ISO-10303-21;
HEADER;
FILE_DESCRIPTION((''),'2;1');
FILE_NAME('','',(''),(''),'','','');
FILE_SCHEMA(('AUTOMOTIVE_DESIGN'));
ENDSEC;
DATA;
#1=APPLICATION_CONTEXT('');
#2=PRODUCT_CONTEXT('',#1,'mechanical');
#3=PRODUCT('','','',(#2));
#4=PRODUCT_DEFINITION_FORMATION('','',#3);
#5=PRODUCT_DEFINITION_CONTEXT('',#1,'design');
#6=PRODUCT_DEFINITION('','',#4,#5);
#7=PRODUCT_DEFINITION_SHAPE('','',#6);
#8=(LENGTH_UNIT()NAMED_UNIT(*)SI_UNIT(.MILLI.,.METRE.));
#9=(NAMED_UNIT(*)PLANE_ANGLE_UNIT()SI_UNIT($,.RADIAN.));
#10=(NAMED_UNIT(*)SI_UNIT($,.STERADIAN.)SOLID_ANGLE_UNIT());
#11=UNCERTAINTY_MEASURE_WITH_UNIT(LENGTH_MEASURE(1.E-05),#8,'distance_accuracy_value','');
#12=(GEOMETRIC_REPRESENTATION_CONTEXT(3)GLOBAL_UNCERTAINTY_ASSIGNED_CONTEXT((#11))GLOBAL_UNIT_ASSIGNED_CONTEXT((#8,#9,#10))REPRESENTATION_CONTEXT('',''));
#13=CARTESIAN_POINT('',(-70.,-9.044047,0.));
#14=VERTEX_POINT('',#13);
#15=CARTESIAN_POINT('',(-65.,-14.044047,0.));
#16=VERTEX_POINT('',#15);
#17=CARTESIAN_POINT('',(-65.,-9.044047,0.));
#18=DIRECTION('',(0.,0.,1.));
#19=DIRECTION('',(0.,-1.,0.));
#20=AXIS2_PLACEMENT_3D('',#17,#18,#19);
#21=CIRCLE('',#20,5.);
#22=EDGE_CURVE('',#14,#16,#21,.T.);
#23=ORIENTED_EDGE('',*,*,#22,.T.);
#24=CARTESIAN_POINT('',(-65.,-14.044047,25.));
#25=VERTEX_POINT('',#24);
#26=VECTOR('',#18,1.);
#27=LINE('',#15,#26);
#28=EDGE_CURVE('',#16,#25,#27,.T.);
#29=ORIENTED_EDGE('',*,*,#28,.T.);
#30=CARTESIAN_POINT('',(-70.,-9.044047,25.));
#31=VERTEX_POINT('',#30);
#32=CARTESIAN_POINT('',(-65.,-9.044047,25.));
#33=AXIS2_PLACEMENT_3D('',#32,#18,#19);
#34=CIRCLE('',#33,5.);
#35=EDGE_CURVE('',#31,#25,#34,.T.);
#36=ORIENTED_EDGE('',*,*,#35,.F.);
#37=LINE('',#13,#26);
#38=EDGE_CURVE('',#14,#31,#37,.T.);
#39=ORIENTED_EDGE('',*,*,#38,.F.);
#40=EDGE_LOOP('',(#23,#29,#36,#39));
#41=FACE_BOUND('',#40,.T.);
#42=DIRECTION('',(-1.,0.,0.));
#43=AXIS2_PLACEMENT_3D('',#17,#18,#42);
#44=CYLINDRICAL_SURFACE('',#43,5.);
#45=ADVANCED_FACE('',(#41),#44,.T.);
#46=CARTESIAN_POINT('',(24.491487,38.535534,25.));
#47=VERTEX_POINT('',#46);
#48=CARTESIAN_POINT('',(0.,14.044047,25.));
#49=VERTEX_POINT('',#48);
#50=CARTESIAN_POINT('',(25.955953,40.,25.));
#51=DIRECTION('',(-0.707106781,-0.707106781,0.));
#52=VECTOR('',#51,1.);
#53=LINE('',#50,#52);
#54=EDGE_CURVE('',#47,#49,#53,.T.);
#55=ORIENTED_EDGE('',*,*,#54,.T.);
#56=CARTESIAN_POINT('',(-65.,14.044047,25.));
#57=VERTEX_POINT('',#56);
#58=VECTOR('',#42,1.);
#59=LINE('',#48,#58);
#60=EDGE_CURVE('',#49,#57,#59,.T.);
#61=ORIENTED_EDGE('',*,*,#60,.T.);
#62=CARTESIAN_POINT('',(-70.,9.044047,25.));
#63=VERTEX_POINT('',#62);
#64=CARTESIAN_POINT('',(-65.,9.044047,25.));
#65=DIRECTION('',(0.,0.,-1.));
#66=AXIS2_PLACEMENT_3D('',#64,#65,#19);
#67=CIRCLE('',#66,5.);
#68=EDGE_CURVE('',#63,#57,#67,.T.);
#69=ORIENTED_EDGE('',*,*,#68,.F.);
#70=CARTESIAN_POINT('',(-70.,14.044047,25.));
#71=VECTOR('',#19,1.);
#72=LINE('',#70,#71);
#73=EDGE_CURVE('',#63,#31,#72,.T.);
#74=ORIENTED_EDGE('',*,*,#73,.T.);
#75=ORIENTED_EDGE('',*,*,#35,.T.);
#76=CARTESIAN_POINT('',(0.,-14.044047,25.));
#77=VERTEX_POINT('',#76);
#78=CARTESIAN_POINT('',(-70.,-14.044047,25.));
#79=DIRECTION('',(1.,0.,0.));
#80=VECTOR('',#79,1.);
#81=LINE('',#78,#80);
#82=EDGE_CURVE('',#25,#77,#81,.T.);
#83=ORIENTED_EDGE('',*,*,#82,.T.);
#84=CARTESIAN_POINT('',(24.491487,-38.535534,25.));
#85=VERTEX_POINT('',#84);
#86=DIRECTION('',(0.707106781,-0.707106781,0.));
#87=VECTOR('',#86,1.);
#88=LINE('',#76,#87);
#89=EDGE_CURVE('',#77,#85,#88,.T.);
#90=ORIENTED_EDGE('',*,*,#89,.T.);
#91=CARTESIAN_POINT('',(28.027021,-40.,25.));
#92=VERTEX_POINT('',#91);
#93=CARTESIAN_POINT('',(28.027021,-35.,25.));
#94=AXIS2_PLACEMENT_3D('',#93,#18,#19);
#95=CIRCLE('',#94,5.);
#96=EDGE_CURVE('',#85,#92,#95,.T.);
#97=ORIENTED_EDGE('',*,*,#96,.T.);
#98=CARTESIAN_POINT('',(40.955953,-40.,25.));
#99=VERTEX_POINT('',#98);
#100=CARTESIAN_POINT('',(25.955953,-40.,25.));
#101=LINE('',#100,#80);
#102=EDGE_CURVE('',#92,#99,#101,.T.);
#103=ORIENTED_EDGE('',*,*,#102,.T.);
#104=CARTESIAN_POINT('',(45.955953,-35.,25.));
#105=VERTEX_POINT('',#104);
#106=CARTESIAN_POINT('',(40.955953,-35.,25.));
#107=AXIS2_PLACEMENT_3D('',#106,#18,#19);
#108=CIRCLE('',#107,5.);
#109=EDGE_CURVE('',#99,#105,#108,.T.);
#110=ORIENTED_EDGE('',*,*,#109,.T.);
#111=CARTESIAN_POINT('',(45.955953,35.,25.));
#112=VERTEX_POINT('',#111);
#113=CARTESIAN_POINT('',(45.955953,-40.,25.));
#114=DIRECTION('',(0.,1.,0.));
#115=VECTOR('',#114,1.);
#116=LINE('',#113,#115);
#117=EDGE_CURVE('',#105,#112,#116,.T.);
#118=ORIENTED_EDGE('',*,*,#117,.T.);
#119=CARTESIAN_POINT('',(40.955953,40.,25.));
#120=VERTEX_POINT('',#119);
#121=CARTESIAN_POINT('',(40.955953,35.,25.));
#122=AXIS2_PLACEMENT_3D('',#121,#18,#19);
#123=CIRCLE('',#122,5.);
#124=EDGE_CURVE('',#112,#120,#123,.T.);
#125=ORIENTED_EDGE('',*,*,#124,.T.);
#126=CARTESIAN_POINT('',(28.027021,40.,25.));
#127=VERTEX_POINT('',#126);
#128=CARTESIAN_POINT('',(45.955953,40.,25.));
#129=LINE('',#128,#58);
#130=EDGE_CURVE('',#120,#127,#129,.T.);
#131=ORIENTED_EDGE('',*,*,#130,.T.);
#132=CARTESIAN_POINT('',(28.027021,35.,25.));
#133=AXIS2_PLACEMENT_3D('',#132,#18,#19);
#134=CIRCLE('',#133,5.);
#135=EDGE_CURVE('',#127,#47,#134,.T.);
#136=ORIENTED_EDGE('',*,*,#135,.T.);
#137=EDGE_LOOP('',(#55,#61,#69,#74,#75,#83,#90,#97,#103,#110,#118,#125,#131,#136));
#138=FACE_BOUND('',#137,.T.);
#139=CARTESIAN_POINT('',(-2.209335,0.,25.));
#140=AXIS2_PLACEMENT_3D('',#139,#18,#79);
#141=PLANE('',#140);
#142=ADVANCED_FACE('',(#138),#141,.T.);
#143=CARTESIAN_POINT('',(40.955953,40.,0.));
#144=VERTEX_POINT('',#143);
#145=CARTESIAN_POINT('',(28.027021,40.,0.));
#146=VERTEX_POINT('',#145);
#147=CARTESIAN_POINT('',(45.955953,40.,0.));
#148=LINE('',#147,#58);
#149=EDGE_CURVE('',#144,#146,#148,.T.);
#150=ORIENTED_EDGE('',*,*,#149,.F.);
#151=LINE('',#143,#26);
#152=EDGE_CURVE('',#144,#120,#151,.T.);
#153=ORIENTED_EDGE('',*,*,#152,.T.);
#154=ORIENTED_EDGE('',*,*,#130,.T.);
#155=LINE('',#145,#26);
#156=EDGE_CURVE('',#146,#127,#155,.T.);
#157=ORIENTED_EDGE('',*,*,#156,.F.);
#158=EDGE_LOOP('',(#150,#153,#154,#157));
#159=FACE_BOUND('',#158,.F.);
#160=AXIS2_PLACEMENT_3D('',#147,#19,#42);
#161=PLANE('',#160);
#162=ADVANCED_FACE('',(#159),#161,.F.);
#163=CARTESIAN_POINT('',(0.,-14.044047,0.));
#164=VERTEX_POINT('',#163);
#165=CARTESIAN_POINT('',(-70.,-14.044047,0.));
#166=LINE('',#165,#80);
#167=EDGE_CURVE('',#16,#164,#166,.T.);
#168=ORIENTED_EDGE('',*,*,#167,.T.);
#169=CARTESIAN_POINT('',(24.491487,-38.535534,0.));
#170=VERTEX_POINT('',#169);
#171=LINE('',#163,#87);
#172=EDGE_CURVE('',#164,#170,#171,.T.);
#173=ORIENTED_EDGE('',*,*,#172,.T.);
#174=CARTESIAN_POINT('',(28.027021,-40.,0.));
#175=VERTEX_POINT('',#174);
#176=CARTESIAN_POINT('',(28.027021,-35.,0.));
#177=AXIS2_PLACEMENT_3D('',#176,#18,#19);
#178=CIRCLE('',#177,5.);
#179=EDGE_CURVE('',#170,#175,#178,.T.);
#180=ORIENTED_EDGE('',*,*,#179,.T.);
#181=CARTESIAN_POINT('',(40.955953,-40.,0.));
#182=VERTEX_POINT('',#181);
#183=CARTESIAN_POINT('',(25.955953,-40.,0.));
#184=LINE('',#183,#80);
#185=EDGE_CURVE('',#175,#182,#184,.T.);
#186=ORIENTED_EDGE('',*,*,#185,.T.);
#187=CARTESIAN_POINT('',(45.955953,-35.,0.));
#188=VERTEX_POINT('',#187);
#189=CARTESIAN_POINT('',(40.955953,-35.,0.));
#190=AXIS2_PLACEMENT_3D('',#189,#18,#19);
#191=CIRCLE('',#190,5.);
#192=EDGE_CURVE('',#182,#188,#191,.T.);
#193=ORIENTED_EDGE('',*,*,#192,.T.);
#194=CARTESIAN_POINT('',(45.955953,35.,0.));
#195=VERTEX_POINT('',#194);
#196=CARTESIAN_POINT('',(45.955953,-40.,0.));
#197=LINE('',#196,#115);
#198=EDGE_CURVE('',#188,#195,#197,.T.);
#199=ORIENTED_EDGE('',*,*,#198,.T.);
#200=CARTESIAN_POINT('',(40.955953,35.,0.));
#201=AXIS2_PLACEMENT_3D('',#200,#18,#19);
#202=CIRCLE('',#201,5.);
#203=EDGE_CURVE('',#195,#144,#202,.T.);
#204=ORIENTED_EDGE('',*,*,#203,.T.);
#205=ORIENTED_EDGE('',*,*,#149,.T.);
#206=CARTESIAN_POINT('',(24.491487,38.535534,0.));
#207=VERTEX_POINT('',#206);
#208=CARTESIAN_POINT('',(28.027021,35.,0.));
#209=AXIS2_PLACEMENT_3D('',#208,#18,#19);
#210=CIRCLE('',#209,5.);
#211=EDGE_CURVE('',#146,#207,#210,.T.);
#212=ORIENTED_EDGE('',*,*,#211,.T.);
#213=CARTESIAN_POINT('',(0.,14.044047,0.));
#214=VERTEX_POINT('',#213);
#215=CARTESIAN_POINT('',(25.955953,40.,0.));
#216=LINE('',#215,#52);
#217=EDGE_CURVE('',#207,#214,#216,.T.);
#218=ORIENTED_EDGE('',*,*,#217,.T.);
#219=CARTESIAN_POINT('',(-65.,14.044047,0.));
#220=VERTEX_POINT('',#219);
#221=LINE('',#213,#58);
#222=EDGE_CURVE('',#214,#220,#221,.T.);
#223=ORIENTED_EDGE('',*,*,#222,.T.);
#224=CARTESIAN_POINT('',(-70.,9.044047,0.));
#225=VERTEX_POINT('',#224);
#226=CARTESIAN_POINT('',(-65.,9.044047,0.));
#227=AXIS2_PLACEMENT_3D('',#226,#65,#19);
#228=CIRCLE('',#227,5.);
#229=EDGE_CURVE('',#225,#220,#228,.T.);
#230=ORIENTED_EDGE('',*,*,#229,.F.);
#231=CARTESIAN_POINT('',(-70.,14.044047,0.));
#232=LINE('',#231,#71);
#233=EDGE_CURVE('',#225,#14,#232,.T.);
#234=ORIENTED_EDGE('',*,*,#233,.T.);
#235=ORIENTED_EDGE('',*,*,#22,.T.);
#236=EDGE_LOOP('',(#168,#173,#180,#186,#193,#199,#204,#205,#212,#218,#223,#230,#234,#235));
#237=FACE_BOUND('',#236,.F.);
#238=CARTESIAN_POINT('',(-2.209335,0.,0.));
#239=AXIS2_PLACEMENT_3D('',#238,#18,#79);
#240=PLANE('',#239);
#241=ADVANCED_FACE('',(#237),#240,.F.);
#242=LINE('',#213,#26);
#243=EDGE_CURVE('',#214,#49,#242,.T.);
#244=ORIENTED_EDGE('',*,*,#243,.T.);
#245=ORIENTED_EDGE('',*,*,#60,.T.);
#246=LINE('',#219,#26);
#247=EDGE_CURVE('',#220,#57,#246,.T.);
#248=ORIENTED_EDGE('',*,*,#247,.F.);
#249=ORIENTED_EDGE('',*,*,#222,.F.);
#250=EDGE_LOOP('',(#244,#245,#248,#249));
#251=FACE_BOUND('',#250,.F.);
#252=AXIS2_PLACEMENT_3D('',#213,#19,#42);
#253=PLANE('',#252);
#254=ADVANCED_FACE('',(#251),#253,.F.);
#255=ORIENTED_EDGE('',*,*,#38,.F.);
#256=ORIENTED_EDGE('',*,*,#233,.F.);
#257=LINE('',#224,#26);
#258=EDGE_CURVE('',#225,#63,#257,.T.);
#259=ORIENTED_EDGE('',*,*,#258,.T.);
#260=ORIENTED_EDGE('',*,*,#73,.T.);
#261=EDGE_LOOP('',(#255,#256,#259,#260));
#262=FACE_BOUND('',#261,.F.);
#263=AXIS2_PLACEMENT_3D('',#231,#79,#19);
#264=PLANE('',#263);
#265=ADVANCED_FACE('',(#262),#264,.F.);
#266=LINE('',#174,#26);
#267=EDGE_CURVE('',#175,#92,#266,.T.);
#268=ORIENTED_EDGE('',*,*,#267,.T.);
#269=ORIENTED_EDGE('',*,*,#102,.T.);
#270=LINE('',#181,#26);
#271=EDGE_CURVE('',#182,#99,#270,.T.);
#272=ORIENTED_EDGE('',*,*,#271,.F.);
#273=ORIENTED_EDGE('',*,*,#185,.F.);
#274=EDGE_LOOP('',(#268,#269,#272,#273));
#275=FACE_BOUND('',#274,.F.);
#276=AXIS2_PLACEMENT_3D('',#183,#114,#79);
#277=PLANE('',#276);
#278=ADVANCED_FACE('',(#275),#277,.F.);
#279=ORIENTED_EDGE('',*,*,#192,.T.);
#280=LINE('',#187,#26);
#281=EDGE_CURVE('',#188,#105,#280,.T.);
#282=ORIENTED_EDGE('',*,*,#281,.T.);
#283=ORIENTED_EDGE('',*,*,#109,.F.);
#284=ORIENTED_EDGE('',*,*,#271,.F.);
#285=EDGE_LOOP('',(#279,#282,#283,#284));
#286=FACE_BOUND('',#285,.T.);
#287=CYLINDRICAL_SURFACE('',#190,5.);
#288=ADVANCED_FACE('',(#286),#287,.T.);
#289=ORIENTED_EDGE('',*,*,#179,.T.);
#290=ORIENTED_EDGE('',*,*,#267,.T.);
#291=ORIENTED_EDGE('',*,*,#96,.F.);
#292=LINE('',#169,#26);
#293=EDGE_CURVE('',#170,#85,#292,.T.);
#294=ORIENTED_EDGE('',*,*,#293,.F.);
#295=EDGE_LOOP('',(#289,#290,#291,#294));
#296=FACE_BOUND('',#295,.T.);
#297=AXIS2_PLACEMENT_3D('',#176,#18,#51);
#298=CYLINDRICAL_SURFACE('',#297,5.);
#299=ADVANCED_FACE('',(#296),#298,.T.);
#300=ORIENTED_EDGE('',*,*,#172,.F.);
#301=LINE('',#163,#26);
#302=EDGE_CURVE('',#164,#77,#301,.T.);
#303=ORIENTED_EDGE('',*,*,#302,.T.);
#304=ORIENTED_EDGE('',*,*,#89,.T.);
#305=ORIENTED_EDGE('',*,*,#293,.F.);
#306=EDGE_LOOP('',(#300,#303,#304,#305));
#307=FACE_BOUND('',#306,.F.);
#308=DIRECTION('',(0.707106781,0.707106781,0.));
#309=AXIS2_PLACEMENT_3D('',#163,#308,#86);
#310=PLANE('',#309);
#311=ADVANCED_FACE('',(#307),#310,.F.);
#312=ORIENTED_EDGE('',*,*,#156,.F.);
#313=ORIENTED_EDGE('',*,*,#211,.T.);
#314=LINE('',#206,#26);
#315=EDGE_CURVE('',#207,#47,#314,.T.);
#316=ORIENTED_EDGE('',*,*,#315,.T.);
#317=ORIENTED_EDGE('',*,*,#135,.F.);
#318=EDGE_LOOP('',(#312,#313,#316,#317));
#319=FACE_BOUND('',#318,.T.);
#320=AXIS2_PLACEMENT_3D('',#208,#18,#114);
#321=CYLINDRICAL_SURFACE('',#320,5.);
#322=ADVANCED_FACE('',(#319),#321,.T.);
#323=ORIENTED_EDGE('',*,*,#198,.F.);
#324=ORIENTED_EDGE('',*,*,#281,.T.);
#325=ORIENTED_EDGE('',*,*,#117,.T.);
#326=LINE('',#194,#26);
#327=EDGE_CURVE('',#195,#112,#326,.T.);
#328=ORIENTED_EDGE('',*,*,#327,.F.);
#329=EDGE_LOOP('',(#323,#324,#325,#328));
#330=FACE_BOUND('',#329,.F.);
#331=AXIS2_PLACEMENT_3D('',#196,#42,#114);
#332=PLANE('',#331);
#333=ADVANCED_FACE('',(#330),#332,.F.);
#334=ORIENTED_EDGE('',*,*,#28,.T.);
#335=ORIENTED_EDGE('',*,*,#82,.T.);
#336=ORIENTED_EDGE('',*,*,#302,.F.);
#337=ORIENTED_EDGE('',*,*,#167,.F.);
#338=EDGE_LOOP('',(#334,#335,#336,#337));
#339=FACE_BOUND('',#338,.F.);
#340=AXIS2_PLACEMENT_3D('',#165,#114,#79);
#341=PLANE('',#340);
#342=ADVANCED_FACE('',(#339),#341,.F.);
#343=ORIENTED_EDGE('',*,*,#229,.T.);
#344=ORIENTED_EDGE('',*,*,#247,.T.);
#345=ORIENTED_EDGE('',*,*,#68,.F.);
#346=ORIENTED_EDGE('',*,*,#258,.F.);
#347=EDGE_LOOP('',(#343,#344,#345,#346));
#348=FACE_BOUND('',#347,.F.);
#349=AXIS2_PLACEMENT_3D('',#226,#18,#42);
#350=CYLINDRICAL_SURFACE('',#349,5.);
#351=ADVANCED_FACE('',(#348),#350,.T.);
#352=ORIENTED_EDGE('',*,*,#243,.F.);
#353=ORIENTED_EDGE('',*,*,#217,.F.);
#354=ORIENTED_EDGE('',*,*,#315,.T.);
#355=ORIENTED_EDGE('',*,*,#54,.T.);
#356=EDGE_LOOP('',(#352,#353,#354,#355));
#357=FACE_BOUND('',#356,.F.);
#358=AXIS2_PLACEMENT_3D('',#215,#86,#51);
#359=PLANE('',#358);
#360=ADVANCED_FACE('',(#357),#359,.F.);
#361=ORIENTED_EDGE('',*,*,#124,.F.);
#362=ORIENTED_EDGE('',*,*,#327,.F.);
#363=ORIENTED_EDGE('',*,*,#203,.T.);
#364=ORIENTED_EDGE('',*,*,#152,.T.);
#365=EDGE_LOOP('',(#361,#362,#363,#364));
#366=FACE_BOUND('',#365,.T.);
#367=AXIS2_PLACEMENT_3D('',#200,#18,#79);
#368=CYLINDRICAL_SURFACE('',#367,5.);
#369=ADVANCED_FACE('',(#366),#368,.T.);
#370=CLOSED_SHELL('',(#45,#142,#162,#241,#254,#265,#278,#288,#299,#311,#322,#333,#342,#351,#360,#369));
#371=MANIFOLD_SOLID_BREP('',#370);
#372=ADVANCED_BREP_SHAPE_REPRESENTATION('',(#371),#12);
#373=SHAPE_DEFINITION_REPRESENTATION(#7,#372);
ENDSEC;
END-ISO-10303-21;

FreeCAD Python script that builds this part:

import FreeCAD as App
import Part
import Sketcher

V = App.Vector
Q = App.Units.Quantity


def edges_at(feature, points):
    """Names of the edges that pass closest to the given points."""
    edges = feature.Shape.Edges
    near = lambda p: min(range(len(edges)), key=lambda i: edges[i].distToShape(Part.Vertex(*p))[0])
    return sorted({f"Edge{near(p) + 1}" for p in points})


def add_polygon(sketch, points):
    """Adds a closed chain of lines whose ends are joined by coincident constraints."""
    first, n = sketch.GeometryCount, len(points)
    for a, b in zip(points, points[1:] + points[:1]):
        sketch.addGeometry(Part.LineSegment(App.Vector(*a, 0), App.Vector(*b, 0)), False)
    for i in range(n):
        sketch.addConstraint(Sketcher.Constraint("Coincident", first + i, 2, first + (i + 1) % n, 1))

doc = App.newDocument("Part")
body = doc.addObject("PartDesign::Body", "Body")

sketch1 = body.newObject("Sketcher::SketchObject", "Sketch")
sketch1.AttachmentSupport = (doc.getObject("XY_Plane"), [""])
sketch1.MapMode = "FlatFace"
add_polygon(sketch1, [(-70, 14), (-70, -14), (0, -14), (26, -40), (46, -40), (46, 40), (26, 40), (0, 14)])
sketch1.addConstraint([
    Sketcher.Constraint("Vertical", 0),
    Sketcher.Constraint("Horizontal", 1),
    Sketcher.Constraint("Horizontal", 3),
    Sketcher.Constraint("Vertical", 4),
    Sketcher.Constraint("Horizontal", 5),
    Sketcher.Constraint("Horizontal", 7),
    Sketcher.Constraint("Symmetric", 1, 2, 6, 2, -1, 1),
    Sketcher.Constraint("Symmetric", 2, 2, 5, 2, -1),
    Sketcher.Constraint("PointOnObject", 1, 2, -2),
    Sketcher.Constraint("Perpendicular", 2, 6),
    Sketcher.Constraint("DistanceX", 1, 1, 1, 2, Q("70 mm")),
    Sketcher.Constraint("DistanceX", 3, 1, 3, 2, Q("20 mm")),
    Sketcher.Constraint("DistanceY", 4, 1, 4, 2, Q("80 mm")),
    Sketcher.Constraint("Distance", 2, Q("36.707261 mm")),
])
pad1 = body.newObject("PartDesign::Pad", "Pad")
pad1.Profile = sketch1
pad1.Length = 25
doc.recompute()

fillet = body.newObject("PartDesign::Fillet", "Fillet")
fillet.Base = (pad1, edges_at(pad1, [
    (-70, -14.044, 12.5),
    (-70, 14.044, 12.5),
    (25.956, -40, 12.5),
    (25.956, 40, 12.5),
    (45.956, 40, 12.5),
    (45.956, -40, 12.5),
]))
fillet.Radius = 5

doc.recompute()
